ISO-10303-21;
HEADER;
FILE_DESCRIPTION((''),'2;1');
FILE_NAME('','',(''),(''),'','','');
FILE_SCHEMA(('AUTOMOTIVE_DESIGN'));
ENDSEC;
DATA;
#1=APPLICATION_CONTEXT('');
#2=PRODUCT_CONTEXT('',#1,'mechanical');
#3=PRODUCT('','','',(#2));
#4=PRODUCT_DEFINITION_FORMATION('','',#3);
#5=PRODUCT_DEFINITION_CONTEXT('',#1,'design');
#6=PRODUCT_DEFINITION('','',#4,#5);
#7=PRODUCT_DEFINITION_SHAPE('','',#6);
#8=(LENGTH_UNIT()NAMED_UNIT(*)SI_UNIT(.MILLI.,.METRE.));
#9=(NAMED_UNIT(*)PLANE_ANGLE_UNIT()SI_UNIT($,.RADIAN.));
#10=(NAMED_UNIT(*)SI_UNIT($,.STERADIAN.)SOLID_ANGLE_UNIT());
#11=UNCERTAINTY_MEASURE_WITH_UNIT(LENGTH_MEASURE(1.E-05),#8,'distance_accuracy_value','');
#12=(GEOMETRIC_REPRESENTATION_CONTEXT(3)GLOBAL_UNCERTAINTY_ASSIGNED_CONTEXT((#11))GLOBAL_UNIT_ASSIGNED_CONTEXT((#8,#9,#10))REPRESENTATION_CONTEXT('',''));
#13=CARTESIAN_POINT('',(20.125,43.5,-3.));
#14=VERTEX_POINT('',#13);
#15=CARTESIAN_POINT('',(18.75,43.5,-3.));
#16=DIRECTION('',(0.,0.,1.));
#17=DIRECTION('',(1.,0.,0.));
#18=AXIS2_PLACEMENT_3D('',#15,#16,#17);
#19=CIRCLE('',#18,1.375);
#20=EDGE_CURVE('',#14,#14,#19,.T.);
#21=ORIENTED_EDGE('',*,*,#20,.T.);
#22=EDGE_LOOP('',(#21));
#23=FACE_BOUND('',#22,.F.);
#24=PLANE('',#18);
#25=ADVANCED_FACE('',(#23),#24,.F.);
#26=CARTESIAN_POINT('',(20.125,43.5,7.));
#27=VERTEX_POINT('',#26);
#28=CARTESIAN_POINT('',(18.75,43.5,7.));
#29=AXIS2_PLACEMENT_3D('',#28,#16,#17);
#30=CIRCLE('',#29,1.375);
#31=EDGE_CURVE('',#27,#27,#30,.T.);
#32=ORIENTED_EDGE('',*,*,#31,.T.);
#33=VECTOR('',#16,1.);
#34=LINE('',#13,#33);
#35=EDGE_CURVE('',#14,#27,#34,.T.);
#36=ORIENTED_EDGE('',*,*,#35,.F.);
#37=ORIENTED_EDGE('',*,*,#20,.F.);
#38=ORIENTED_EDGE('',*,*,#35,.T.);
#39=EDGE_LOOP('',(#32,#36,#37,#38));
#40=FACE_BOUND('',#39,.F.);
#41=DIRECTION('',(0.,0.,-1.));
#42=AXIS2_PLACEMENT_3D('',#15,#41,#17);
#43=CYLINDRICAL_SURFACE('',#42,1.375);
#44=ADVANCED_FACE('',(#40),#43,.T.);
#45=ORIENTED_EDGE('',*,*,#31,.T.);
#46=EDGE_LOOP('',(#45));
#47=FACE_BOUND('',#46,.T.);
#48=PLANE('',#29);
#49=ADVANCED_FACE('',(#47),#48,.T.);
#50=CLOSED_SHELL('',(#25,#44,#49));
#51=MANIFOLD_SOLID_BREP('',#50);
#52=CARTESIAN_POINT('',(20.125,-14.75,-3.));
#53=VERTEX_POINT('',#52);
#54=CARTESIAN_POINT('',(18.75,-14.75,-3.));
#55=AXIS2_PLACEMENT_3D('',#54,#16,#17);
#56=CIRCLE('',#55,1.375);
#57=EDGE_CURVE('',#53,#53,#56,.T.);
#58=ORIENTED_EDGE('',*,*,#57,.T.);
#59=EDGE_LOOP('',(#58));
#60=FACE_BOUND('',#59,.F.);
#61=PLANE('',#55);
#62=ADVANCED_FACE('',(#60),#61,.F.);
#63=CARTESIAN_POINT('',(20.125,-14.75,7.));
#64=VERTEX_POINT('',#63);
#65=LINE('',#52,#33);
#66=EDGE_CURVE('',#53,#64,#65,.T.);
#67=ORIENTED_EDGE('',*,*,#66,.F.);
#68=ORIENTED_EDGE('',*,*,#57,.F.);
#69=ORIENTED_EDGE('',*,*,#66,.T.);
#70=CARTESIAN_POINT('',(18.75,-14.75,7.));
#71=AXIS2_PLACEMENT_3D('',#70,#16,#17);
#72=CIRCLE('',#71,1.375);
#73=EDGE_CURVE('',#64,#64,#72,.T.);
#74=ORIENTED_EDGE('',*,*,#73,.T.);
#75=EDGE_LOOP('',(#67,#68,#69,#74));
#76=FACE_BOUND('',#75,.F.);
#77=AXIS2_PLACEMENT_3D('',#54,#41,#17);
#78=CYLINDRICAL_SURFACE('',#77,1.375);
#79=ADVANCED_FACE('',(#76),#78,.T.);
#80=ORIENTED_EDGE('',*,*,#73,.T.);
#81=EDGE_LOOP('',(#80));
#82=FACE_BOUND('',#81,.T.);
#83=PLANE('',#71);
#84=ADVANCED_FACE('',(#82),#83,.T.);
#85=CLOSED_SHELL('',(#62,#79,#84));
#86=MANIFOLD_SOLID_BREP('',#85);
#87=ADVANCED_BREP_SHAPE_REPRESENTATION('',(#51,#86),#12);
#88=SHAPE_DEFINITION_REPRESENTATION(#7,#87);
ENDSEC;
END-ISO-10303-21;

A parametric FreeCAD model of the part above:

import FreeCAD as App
import Part
import Sketcher
Q = App.Units.Quantity

doc = App.newDocument("Part")
body = doc.addObject("PartDesign::Body", "Body")

# Sketch on XY plane
sketch1 = body.newObject("Sketcher::SketchObject", "Sketch")
sketch1.AttachmentSupport = (doc.getObject("XY_Plane"), [""])
sketch1.MapMode = "FlatFace"
sketch1.AttachmentOffset = App.Placement(App.Vector(0, 0, -3), App.Rotation())
sketch1.addGeometry(Part.Circle(App.Vector(18.8, -14.8, 0), App.Vector(0, 0, 1), 1.4), False)
sketch1.addConstraint(Sketcher.Constraint("Diameter", 0, Q("2.75 mm")))
sketch1.addConstraint(Sketcher.Constraint("DistanceX", -1, 1, 0, 3, Q("18.75 mm")))
sketch1.addConstraint(Sketcher.Constraint("DistanceY", 0, 3, -1, 1, Q("14.75 mm")))
pad1 = body.newObject("PartDesign::Pad", "Pad")
pad1.Profile = sketch1
pad1.Length = 10
body2 = doc.addObject("PartDesign::Body", "Body001")
body2.AllowCompound = True

# Sketch on XY plane
sketch2 = body2.newObject("Sketcher::SketchObject", "Sketch001")
sketch2.AttachmentSupport = (doc.getObject("XY_Plane001"), [""])
sketch2.MapMode = "FlatFace"
sketch2.AttachmentOffset = App.Placement(App.Vector(0, 0, -3), App.Rotation())
sketch2.addGeometry(Part.Circle(App.Vector(18.8, 43.5, 0), App.Vector(0, 0, 1), 1.4), False)
sketch2.addConstraint(Sketcher.Constraint("Diameter", 0, Q("2.75 mm")))
sketch2.addConstraint(Sketcher.Constraint("DistanceY", -1, 1, 0, 3, Q("43.5 mm")))
sketch2.addConstraint(Sketcher.Constraint("DistanceX", -1, 1, 0, 3, Q("18.75 mm")))
pad2 = body2.newObject("PartDesign::Pad", "Pad001")
pad2.Profile = sketch2
pad2.Length = 10
doc.recompute()

boolean = body2.newObject("PartDesign::Boolean", "Boolean")
boolean.Type = "Fuse"
boolean.addObjects([body])

doc.recompute()
